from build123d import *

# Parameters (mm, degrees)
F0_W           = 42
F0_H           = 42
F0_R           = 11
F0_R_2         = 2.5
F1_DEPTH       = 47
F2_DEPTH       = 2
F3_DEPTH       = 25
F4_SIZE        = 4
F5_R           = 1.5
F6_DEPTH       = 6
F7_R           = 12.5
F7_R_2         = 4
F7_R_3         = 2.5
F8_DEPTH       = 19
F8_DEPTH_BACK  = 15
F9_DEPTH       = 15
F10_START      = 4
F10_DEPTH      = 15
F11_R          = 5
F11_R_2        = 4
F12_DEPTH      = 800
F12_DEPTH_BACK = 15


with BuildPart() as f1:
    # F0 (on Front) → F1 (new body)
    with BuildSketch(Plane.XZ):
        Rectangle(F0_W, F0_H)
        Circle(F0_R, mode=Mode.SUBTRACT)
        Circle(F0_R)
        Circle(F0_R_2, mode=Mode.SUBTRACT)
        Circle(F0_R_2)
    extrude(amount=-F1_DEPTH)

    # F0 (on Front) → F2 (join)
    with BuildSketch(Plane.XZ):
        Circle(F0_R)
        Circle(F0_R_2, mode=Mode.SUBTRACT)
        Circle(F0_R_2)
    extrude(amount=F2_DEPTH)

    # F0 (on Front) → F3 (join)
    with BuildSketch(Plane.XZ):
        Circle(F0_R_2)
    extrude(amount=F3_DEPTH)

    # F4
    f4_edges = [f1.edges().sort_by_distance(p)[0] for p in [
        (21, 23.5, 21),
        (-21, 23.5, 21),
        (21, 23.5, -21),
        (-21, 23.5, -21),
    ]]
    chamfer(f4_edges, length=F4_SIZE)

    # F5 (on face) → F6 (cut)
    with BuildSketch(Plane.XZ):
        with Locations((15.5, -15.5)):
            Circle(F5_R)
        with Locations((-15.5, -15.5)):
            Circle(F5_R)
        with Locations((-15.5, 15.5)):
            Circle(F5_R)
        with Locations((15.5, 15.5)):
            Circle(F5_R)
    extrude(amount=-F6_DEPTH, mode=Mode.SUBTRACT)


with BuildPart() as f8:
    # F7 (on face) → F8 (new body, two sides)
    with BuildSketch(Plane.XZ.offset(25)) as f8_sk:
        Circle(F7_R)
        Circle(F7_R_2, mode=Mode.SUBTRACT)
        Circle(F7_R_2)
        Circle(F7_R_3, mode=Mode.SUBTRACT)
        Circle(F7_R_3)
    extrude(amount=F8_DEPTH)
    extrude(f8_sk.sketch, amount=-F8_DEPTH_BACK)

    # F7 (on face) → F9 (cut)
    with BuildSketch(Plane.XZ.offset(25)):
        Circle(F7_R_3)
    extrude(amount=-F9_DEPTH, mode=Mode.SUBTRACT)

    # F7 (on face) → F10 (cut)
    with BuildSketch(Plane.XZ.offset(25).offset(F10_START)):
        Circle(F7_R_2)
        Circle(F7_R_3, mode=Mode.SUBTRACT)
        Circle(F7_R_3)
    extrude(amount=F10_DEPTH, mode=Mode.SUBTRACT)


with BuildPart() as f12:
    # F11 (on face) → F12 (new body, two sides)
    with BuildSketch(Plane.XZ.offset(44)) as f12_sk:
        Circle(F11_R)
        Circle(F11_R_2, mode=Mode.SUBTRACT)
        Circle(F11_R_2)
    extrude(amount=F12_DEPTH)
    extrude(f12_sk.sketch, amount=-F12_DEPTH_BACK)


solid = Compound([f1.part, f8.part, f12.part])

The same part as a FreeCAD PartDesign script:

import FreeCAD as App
import Part
import Sketcher
from FreeCAD import Vector


def edges_at(feature, points):
    """Names of the edges that pass closest to the given points."""
    edges = feature.Shape.Edges
    near = lambda p: min(range(len(edges)), key=lambda i: edges[i].distToShape(Part.Vertex(*p))[0])
    return sorted({f"Edge{near(p) + 1}" for p in points})

doc = App.newDocument("Part")
body = doc.addObject("PartDesign::Body", "Body")

sketch1 = doc.addObject("Sketcher::SketchObject", "Sketch")
body.addObject(sketch1)
sketch1.AttachmentSupport = (doc.XZ_Plane, [""])
sketch1.MapMode = "FlatFace"
sketch1.addGeometry(Part.LineSegment(Vector(-21, 21, 0), Vector(-21, -21, 0)), False)
sketch1.addGeometry(Part.LineSegment(Vector(-21, -21, 0), Vector(21, -21, 0)), False)
sketch1.addGeometry(Part.LineSegment(Vector(21, -21, 0), Vector(21, 21, 0)), False)
sketch1.addGeometry(Part.LineSegment(Vector(21, 21, 0), Vector(-21, 21, 0)), False)
sketch1.addConstraint(Sketcher.Constraint("Coincident", 0, 2, 1, 1))
sketch1.addConstraint(Sketcher.Constraint("Coincident", 1, 2, 2, 1))
sketch1.addConstraint(Sketcher.Constraint("Coincident", 2, 2, 3, 1))
sketch1.addConstraint(Sketcher.Constraint("Coincident", 3, 2, 0, 1))
sketch1.addConstraint(Sketcher.Constraint("Vertical", 0))
sketch1.addConstraint(Sketcher.Constraint("Horizontal", 1))
sketch1.addConstraint(Sketcher.Constraint("Vertical", 2))
sketch1.addConstraint(Sketcher.Constraint("Horizontal", 3))
sketch1.addConstraint(Sketcher.Constraint("Symmetric", 0, 2, 2, 2, -1, 1))
sketch1.addConstraint(Sketcher.Constraint("Equal", 3, 0))
sketch1.addConstraint(Sketcher.Constraint("DistanceX", 1, 1, 1, 2, 42.0))
pad1 = doc.addObject("PartDesign::Pad", "Pad")
body.addObject(pad1)
pad1.Profile = sketch1
pad1.Length = 47
pad1.Reversed = True

sketch2 = doc.addObject("Sketcher::SketchObject", "Sketch001")
body.addObject(sketch2)
sketch2.AttachmentSupport = (doc.XZ_Plane, [""])
sketch2.MapMode = "FlatFace"
sketch2.addGeometry(Part.Circle(Vector(0, 0, 0), Vector(0, 0, 1), 11), False)
sketch2.addConstraint(Sketcher.Constraint("Coincident", 0, 3, -1, 1))
sketch2.addConstraint(Sketcher.Constraint("Diameter", 0, 22.0))
pad2 = doc.addObject("PartDesign::Pad", "Pad001")
body.addObject(pad2)
pad2.Profile = sketch2
pad2.Length = 2

sketch3 = doc.addObject("Sketcher::SketchObject", "Sketch002")
body.addObject(sketch3)
sketch3.AttachmentSupport = (doc.XZ_Plane, [""])
sketch3.MapMode = "FlatFace"
sketch3.addGeometry(Part.Circle(Vector(0, 0, 0), Vector(0, 0, 1), 2.5), False)
sketch3.addConstraint(Sketcher.Constraint("Coincident", 0, 3, -1, 1))
sketch3.addConstraint(Sketcher.Constraint("Diameter", 0, 5.0))
pad3 = doc.addObject("PartDesign::Pad", "Pad002")
body.addObject(pad3)
pad3.Profile = sketch3
pad3.Length = 25
doc.recompute()

chamfer = doc.addObject("PartDesign::Chamfer", "Chamfer")
body.addObject(chamfer)
chamfer.Base = (pad3, edges_at(pad3, [
    (21, 23.5, 21),
    (-21, 23.5, 21),
    (21, 23.5, -21),
    (-21, 23.5, -21),
]))
chamfer.Size = 4

sketch4 = doc.addObject("Sketcher::SketchObject", "Sketch003")
body.addObject(sketch4)
sketch4.AttachmentSupport = (doc.XZ_Plane, [""])
sketch4.MapMode = "FlatFace"
sketch4.addGeometry(Part.Circle(Vector(15.5, -15.5, 0), Vector(0, 0, 1), 1.5), False)
sketch4.addGeometry(Part.Circle(Vector(-15.5, -15.5, 0), Vector(0, 0, 1), 1.5), False)
sketch4.addGeometry(Part.Circle(Vector(-15.5, 15.5, 0), Vector(0, 0, 1), 1.5), False)
sketch4.addGeometry(Part.Circle(Vector(15.5, 15.5, 0), Vector(0, 0, 1), 1.5), False)
sketch4.addConstraint(Sketcher.Constraint("Equal", 0, 1))
sketch4.addConstraint(Sketcher.Constraint("Equal", 1, 2))
sketch4.addConstraint(Sketcher.Constraint("Equal", 2, 3))
sketch4.addConstraint(Sketcher.Constraint("Symmetric", 0, 3, 2, 3, -1, 1))
sketch4.addConstraint(Sketcher.Constraint("Symmetric", 1, 3, 3, 3, -1, 1))
sketch4.addConstraint(Sketcher.Constraint("Symmetric", 0, 3, 1, 3, -2))
sketch4.addConstraint(Sketcher.Constraint("Diameter", 0, 3.0))
sketch4.addConstraint(Sketcher.Constraint("DistanceX", 1, 3, 0, 3, 31.0))
sketch4.addConstraint(Sketcher.Constraint("DistanceY", 1, 3, 2, 3, 31.0))
pocket1 = doc.addObject("PartDesign::Pocket", "Pocket")
body.addObject(pocket1)
pocket1.Profile = sketch4
pocket1.Length = 6
body2 = doc.addObject("PartDesign::Body", "Body001")

sketch5 = doc.addObject("Sketcher::SketchObject", "Sketch004")
body2.addObject(sketch5)
sketch5.AttachmentSupport = (doc.getObject("XZ_Plane001"), [""])
sketch5.MapMode = "FlatFace"
sketch5.AttachmentOffset = App.Placement(Vector(0, 0, 25), App.Rotation())
sketch5.addGeometry(Part.Circle(Vector(0, 0, 0), Vector(0, 0, 1), 12), False)
sketch5.addConstraint(Sketcher.Constraint("Coincident", 0, 3, -1, 1))
sketch5.addConstraint(Sketcher.Constraint("Diameter", 0, 25.0))
pad4 = doc.addObject("PartDesign::Pad", "Pad003")
body2.addObject(pad4)
pad4.Profile = sketch5
pad4.Type = "TwoLengths"
pad4.Length = 19
pad4.Length2 = 15

sketch6 = doc.addObject("Sketcher::SketchObject", "Sketch005")
body2.addObject(sketch6)
sketch6.AttachmentSupport = (doc.getObject("XZ_Plane001"), [""])
sketch6.MapMode = "FlatFace"
sketch6.AttachmentOffset = App.Placement(Vector(0, 0, 25), App.Rotation())
sketch6.addGeometry(Part.Circle(Vector(0, 0, 0), Vector(0, 0, 1), 2.5), False)
sketch6.addConstraint(Sketcher.Constraint("Coincident", 0, 3, -1, 1))
sketch6.addConstraint(Sketcher.Constraint("Diameter", 0, 5.0))
pocket2 = doc.addObject("PartDesign::Pocket", "Pocket001")
body2.addObject(pocket2)
pocket2.Profile = sketch6
pocket2.Length = 15

sketch7 = doc.addObject("Sketcher::SketchObject", "Sketch006")
body2.addObject(sketch7)
sketch7.AttachmentSupport = (doc.getObject("XZ_Plane001"), [""])
sketch7.MapMode = "FlatFace"
sketch7.AttachmentOffset = App.Placement(Vector(0, 0, 29), App.Rotation())
sketch7.addGeometry(Part.Circle(Vector(0, 0, 0), Vector(0, 0, 1), 4), False)
sketch7.addConstraint(Sketcher.Constraint("Coincident", 0, 3, -1, 1))
sketch7.addConstraint(Sketcher.Constraint("Diameter", 0, 8.0))
pocket3 = doc.addObject("PartDesign::Pocket", "Pocket002")
body2.addObject(pocket3)
pocket3.Profile = sketch7
pocket3.Length = 15
pocket3.Reversed = True
body3 = doc.addObject("PartDesign::Body", "Body002")

sketch8 = doc.addObject("Sketcher::SketchObject", "Sketch007")
body3.addObject(sketch8)
sketch8.AttachmentSupport = (doc.getObject("XZ_Plane002"), [""])
sketch8.MapMode = "FlatFace"
sketch8.AttachmentOffset = App.Placement(Vector(0, 0, 44), App.Rotation())
sketch8.addGeometry(Part.Circle(Vector(0, 0, 0), Vector(0, 0, 1), 5), False)
sketch8.addConstraint(Sketcher.Constraint("Coincident", 0, 3, -1, 1))
sketch8.addConstraint(Sketcher.Constraint("Diameter", 0, 10.0))
pad5 = doc.addObject("PartDesign::Pad", "Pad004")
body3.addObject(pad5)
pad5.Profile = sketch8
pad5.Type = "TwoLengths"
pad5.Length = 800
pad5.Length2 = 15

doc.recompute()
